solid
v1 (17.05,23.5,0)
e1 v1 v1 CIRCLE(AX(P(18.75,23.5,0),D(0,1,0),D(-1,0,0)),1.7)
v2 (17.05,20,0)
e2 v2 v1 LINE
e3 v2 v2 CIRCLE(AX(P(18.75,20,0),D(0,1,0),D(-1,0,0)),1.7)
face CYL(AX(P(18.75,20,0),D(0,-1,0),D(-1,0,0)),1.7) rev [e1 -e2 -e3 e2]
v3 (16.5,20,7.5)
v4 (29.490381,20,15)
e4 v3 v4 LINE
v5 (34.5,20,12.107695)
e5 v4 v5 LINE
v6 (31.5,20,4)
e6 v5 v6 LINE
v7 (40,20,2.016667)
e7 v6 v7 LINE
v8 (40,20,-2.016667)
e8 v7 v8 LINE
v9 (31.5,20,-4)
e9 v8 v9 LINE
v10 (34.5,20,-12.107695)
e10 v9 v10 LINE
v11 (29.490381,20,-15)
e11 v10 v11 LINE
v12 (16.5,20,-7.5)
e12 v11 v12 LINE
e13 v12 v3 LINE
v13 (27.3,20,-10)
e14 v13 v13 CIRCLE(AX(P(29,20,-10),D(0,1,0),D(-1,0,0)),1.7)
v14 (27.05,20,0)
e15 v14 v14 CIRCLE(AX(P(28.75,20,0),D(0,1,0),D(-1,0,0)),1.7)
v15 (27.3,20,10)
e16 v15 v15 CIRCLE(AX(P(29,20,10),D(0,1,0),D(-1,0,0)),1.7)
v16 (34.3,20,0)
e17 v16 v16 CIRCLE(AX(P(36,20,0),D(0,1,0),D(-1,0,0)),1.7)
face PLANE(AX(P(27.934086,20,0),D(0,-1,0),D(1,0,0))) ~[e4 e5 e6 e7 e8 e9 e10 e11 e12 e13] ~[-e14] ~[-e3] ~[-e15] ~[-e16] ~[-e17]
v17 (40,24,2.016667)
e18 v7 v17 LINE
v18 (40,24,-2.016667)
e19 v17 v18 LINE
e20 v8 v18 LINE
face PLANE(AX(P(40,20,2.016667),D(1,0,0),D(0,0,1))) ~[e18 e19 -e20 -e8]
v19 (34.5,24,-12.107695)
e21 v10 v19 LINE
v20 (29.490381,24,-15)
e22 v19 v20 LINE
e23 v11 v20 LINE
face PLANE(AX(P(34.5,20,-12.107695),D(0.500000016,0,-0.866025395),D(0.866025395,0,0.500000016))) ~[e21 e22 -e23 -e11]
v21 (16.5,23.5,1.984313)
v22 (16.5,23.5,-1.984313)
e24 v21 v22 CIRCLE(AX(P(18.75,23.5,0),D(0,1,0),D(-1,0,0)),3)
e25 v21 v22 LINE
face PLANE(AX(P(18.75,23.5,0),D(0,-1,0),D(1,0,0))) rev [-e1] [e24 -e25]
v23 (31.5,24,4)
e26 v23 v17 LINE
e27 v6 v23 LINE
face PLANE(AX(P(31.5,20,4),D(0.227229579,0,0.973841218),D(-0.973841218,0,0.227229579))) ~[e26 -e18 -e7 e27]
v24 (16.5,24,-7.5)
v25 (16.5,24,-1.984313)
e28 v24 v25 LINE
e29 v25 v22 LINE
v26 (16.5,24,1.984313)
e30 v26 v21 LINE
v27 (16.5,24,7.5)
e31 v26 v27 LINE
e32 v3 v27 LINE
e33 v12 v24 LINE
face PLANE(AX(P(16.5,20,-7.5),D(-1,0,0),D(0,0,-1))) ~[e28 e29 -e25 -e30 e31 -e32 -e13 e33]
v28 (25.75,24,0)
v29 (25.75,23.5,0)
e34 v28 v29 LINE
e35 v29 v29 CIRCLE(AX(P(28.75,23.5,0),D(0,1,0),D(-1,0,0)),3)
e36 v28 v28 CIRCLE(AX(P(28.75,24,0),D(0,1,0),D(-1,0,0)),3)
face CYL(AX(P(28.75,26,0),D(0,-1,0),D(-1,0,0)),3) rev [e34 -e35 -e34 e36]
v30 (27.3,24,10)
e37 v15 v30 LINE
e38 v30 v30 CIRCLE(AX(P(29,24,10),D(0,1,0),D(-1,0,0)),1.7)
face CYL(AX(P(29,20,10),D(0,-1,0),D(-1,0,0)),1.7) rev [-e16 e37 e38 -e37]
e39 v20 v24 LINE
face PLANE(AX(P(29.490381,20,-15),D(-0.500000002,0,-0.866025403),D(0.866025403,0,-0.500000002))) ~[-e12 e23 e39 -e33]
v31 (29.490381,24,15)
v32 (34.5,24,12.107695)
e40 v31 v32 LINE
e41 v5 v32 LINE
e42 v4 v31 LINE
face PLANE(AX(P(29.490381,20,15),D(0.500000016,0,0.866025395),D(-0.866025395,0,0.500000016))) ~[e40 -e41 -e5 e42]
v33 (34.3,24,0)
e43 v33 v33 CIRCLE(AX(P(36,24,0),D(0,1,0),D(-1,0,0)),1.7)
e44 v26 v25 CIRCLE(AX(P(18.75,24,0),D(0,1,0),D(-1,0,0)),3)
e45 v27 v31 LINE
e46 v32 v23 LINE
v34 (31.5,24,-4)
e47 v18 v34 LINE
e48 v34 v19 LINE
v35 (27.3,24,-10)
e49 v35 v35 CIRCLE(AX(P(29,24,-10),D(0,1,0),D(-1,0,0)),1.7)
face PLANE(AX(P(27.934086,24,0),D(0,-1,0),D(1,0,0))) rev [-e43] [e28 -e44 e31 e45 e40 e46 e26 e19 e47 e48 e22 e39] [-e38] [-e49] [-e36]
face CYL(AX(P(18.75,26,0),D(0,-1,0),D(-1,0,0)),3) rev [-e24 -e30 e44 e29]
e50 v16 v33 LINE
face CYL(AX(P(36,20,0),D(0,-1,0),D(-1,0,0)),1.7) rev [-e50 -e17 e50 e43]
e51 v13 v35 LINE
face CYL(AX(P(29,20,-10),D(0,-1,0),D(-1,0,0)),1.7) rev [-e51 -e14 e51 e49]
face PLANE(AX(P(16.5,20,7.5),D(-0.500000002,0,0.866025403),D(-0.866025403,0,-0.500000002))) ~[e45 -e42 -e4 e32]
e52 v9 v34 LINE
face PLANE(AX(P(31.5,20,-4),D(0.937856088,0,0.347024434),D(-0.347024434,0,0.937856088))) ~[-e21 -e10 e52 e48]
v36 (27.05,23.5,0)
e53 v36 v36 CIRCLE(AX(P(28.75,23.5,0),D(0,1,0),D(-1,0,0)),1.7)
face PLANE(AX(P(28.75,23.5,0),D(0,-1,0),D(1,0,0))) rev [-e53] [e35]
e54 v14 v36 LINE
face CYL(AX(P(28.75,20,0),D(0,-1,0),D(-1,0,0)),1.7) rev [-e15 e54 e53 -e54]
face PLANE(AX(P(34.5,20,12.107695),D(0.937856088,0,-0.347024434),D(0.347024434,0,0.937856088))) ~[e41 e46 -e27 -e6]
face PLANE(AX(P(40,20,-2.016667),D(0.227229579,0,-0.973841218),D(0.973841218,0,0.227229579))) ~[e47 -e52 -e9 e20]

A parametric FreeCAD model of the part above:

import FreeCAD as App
import Part
import Sketcher
Q = App.Units.Quantity

doc = App.newDocument("Part")
body = doc.addObject("PartDesign::Body", "Body")
body.AllowCompound = True

# Sketch on XZ plane
sketch1 = body.newObject("Sketcher::SketchObject", "Sketch")
sketch1.AttachmentSupport = (doc.getObject("XZ_Plane"), [""])
sketch1.MapMode = "FlatFace"
sketch1.AttachmentOffset = App.Placement(App.Vector(0, 0, -26), App.Rotation())
sketch1.addGeometry(Part.Circle(App.Vector(-18.8, 0, 0), App.Vector(0, 0, 1), 3), False)
sketch1.addGeometry(Part.Circle(App.Vector(-28.8, 0, 0), App.Vector(0, 0, 1), 3), False)
sketch1.addConstraint(Sketcher.Constraint("Equal", 0, 1))
sketch1.addConstraint(Sketcher.Constraint("PointOnObject", 0, 3, -1))
sketch1.addConstraint(Sketcher.Constraint("PointOnObject", 1, 3, -1))
sketch1.addConstraint(Sketcher.Constraint("Diameter", 0, Q("6 mm")))
sketch1.addConstraint(Sketcher.Constraint("DistanceX", 1, 3, 0, 3, Q("10 mm")))
sketch1.addConstraint(Sketcher.Constraint("DistanceX", 0, 3, -1, 1, Q("18.75 mm")))
pad1 = body.newObject("PartDesign::Pad", "Pad")
pad1.Profile = sketch1
pad1.Type = "TwoLengths"
pad1.Length = 2.5
pad1.Length2 = 100
body2 = doc.addObject("PartDesign::Body", "Body001")

# Sketch on XZ plane
sketch2 = body2.newObject("Sketcher::SketchObject", "Sketch001")
sketch2.AttachmentSupport = (doc.getObject("XZ_Plane001"), [""])
sketch2.MapMode = "FlatFace"
sketch2.AttachmentOffset = App.Placement(App.Vector(0, 0, -20), App.Rotation())
sketch2.addGeometry(Part.LineSegment(App.Vector(-16.5, 7.5, 0), App.Vector(-29.5, 15, 0)), False)
sketch2.addGeometry(Part.LineSegment(App.Vector(-29.5, 15, 0), App.Vector(-34.5, 12.1, 0)), False)
sketch2.addGeometry(Part.LineSegment(App.Vector(-34.5, 12.1, 0), App.Vector(-31.5, 4, 0)), False)
sketch2.addGeometry(Part.LineSegment(App.Vector(-31.5, 4, 0), App.Vector(-40, 2, 0)), False)
sketch2.addGeometry(Part.LineSegment(App.Vector(-40, 2, 0), App.Vector(-40, -2, 0)), False)
sketch2.addGeometry(Part.LineSegment(App.Vector(-40, -2, 0), App.Vector(-31.5, -4, 0)), False)
sketch2.addGeometry(Part.LineSegment(App.Vector(-31.5, -4, 0), App.Vector(-34.5, -12.1, 0)), False)
sketch2.addGeometry(Part.LineSegment(App.Vector(-34.5, -12.1, 0), App.Vector(-29.5, -15, 0)), False)
sketch2.addGeometry(Part.LineSegment(App.Vector(-29.5, -15, 0), App.Vector(-16.5, -7.5, 0)), False)
sketch2.addGeometry(Part.LineSegment(App.Vector(-16.5, -7.5, 0), App.Vector(-16.5, 7.5, 0)), False)
sketch2.addGeometry(Part.Circle(App.Vector(-29, -10, 0), App.Vector(0, 0, 1), 1.7), False)
sketch2.addGeometry(Part.Circle(App.Vector(-36, 0, 0), App.Vector(0, 0, 1), 1.7), False)
sketch2.addGeometry(Part.Circle(App.Vector(-28.8, 0, 0), App.Vector(0, 0, 1), 1.7), False)
sketch2.addGeometry(Part.Circle(App.Vector(-29, 10, 0), App.Vector(0, 0, 1), 1.7), False)
sketch2.addGeometry(Part.Circle(App.Vector(-18.8, 0, 0), App.Vector(0, 0, 1), 1.7), False)
sketch2.addConstraint(Sketcher.Constraint("Coincident", 0, 2, 1, 1))
sketch2.addConstraint(Sketcher.Constraint("Coincident", 1, 2, 2, 1))
sketch2.addConstraint(Sketcher.Constraint("Coincident", 2, 2, 3, 1))
sketch2.addConstraint(Sketcher.Constraint("Coincident", 3, 2, 4, 1))
sketch2.addConstraint(Sketcher.Constraint("Coincident", 4, 2, 5, 1))
sketch2.addConstraint(Sketcher.Constraint("Coincident", 5, 2, 6, 1))
sketch2.addConstraint(Sketcher.Constraint("Coincident", 6, 2, 7, 1))
sketch2.addConstraint(Sketcher.Constraint("Coincident", 7, 2, 8, 1))
sketch2.addConstraint(Sketcher.Constraint("Coincident", 8, 2, 9, 1))
sketch2.addConstraint(Sketcher.Constraint("Coincident", 9, 2, 0, 1))
sketch2.addConstraint(Sketcher.Constraint("Vertical", 4))
sketch2.addConstraint(Sketcher.Constraint("Vertical", 9))
sketch2.addConstraint(Sketcher.Constraint("Equal", 10, 11))
sketch2.addConstraint(Sketcher.Constraint("Equal", 11, 12))
sketch2.addConstraint(Sketcher.Constraint("Equal", 12, 13))
sketch2.addConstraint(Sketcher.Constraint("Equal", 13, 14))
sketch2.addConstraint(Sketcher.Constraint("Symmetric", 10, 3, 13, 3, -1))
sketch2.addConstraint(Sketcher.Constraint("Symmetric", 2, 2, 5, 2, -1))
sketch2.addConstraint(Sketcher.Constraint("Symmetric", 1, 2, 6, 2, -1))
sketch2.addConstraint(Sketcher.Constraint("Symmetric", 0, 2, 7, 2, -1))
sketch2.addConstraint(Sketcher.Constraint("PointOnObject", 11, 3, -1))
sketch2.addConstraint(Sketcher.Constraint("PointOnObject", 12, 3, -1))
sketch2.addConstraint(Sketcher.Constraint("PointOnObject", 14, 3, -1))
sketch2.addConstraint(Sketcher.Constraint("Parallel", 0, 7))
sketch2.addConstraint(Sketcher.Constraint("Parallel", 1, 8))
sketch2.addConstraint(Sketcher.Constraint("Equal", 3, 5))
sketch2.addConstraint(Sketcher.Constraint("Diameter", 10, Q("3.4 mm")))
sketch2.addConstraint(Sketcher.Constraint("DistanceY", 9, 1, 9, 2, Q("15 mm")))
sketch2.addConstraint(Sketcher.Constraint("Angle", 0, Q("150 deg")))
sketch2.addConstraint(Sketcher.Constraint("Distance", 0, Q("15 mm")))
sketch2.addConstraint(Sketcher.Constraint("DistanceX", 10, 3, -1, 1, Q("29 mm")))
sketch2.addConstraint(Sketcher.Constraint("DistanceY", 10, 3, -1, 1, Q("10 mm")))
sketch2.addConstraint(Sketcher.Constraint("DistanceX", 11, 3, -1, 1, Q("36 mm")))
sketch2.addConstraint(Sketcher.Constraint("DistanceY", -1, 1, 2, 2, Q("4 mm")))
sketch2.addConstraint(Sketcher.Constraint("DistanceX", 3, 2, -1, 1, Q("40 mm")))
sketch2.addConstraint(Sketcher.Constraint("DistanceX", 12, 3, 14, 3, Q("10 mm")))
sketch2.addConstraint(Sketcher.Constraint("DistanceX", 1, 2, 2, 2, Q("3 mm")))
sketch2.addConstraint(Sketcher.Constraint("DistanceX", 5, 2, 8, 2, Q("15 mm")))
sketch2.addConstraint(Sketcher.Constraint("DistanceX", 1, 2, -1, 1, Q("34.5 mm")))
sketch2.addConstraint(Sketcher.Constraint("DistanceX", 12, 3, -1, 1, Q("28.75 mm")))
sketch2.addConstraint(Sketcher.Constraint("DistanceY", 4, 2, 4, 1, Q("4.033334 mm")))
pad2 = body2.newObject("PartDesign::Pad", "Pad001")
pad2.Profile = sketch2
pad2.Length = 4
pad2.Reversed = True
doc.recompute()

boolean = body2.newObject("PartDesign::Boolean", "Boolean")
boolean.Type = "Cut"
boolean.addObjects([body])
body3 = doc.addObject("PartDesign::Body", "Body002")
doc.recompute()

mirroring = doc.addObject("Part::Mirroring", "Mirroring")
mirroring.Source = body2
mirroring.Base = App.Vector(0, 0, 0)
mirroring.Normal = App.Vector(1, 0, 0)
body3.BaseFeature = mirroring
doc.recompute()
body2.Visibility = False
mirroring.Visibility = False

doc.recompute()
